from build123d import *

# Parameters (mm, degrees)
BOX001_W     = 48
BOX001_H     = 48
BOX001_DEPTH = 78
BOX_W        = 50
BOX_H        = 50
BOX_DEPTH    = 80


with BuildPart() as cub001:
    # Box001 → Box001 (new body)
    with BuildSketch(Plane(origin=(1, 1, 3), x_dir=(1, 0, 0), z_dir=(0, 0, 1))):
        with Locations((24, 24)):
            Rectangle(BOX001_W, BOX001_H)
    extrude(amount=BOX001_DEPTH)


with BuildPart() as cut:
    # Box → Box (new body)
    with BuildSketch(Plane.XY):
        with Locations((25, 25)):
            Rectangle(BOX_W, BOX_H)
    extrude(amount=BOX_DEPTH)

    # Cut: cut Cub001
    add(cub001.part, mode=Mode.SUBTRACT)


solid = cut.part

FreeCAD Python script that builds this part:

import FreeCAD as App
import Part
import Sketcher
from FreeCAD import Vector


def add_polygon(sketch, points):
    """Adds a closed chain of lines whose ends are joined by coincident constraints."""
    first, n = sketch.GeometryCount, len(points)
    for a, b in zip(points, points[1:] + points[:1]):
        sketch.addGeometry(Part.LineSegment(App.Vector(*a, 0), App.Vector(*b, 0)), False)
    for i in range(n):
        sketch.addConstraint(Sketcher.Constraint("Coincident", first + i, 2, first + (i + 1) % n, 1))

doc = App.newDocument("Part")
body = doc.addObject("PartDesign::Body", "Body")

# Sketch on XY plane
sketch1 = doc.addObject("Sketcher::SketchObject", "Sketch")
body.addObject(sketch1)
sketch1.AttachmentSupport = (doc.XY_Plane, [""])
sketch1.MapMode = "FlatFace"
sketch1.AttachmentOffset = App.Placement(Vector(0, 0, 3), App.Rotation())
add_polygon(sketch1, [(1, 49), (1, 1), (49, 1), (49, 49)])  # lines 0-3
sketch1.addConstraint([
    Sketcher.Constraint("Vertical", 0),
    Sketcher.Constraint("Horizontal", 1),
    Sketcher.Constraint("Vertical", 2),
    Sketcher.Constraint("Horizontal", 3),
    Sketcher.Constraint("Equal", 3, 0),
    Sketcher.Constraint("DistanceX", 1, 1, 1, 2, 48.0),
    Sketcher.Constraint("DistanceX", -1, 1, 0, 2, 1.0),
    Sketcher.Constraint("DistanceY", -1, 1, 0, 2, 1.0),
])
pad1 = doc.addObject("PartDesign::Pad", "Pad")
body.addObject(pad1)
pad1.Profile = sketch1
pad1.Length = 78
body2 = doc.addObject("PartDesign::Body", "Body001")

# Sketch on XY plane
sketch2 = doc.addObject("Sketcher::SketchObject", "Sketch001")
body2.addObject(sketch2)
sketch2.AttachmentSupport = (doc.getObject("XY_Plane001"), [""])
sketch2.MapMode = "FlatFace"
add_polygon(sketch2, [(0, 50), (0, 0), (50, 0), (50, 50)])  # lines 0-3
sketch2.addConstraint([
    Sketcher.Constraint("Vertical", 0),
    Sketcher.Constraint("Horizontal", 1),
    Sketcher.Constraint("Vertical", 2),
    Sketcher.Constraint("Horizontal", 3),
    Sketcher.Constraint("Coincident", 0, 2, -1, 1),
    Sketcher.Constraint("Equal", 3, 0),
    Sketcher.Constraint("DistanceX", 1, 1, 1, 2, 50.0),
])
pad2 = doc.addObject("PartDesign::Pad", "Pad001")
body2.addObject(pad2)
pad2.Profile = sketch2
pad2.Length = 80
doc.recompute()

boolean = doc.addObject("PartDesign::Boolean", "Boolean")
body2.addObject(boolean)
boolean.Type = "Cut"
boolean.addObjects([body])

doc.recompute()
